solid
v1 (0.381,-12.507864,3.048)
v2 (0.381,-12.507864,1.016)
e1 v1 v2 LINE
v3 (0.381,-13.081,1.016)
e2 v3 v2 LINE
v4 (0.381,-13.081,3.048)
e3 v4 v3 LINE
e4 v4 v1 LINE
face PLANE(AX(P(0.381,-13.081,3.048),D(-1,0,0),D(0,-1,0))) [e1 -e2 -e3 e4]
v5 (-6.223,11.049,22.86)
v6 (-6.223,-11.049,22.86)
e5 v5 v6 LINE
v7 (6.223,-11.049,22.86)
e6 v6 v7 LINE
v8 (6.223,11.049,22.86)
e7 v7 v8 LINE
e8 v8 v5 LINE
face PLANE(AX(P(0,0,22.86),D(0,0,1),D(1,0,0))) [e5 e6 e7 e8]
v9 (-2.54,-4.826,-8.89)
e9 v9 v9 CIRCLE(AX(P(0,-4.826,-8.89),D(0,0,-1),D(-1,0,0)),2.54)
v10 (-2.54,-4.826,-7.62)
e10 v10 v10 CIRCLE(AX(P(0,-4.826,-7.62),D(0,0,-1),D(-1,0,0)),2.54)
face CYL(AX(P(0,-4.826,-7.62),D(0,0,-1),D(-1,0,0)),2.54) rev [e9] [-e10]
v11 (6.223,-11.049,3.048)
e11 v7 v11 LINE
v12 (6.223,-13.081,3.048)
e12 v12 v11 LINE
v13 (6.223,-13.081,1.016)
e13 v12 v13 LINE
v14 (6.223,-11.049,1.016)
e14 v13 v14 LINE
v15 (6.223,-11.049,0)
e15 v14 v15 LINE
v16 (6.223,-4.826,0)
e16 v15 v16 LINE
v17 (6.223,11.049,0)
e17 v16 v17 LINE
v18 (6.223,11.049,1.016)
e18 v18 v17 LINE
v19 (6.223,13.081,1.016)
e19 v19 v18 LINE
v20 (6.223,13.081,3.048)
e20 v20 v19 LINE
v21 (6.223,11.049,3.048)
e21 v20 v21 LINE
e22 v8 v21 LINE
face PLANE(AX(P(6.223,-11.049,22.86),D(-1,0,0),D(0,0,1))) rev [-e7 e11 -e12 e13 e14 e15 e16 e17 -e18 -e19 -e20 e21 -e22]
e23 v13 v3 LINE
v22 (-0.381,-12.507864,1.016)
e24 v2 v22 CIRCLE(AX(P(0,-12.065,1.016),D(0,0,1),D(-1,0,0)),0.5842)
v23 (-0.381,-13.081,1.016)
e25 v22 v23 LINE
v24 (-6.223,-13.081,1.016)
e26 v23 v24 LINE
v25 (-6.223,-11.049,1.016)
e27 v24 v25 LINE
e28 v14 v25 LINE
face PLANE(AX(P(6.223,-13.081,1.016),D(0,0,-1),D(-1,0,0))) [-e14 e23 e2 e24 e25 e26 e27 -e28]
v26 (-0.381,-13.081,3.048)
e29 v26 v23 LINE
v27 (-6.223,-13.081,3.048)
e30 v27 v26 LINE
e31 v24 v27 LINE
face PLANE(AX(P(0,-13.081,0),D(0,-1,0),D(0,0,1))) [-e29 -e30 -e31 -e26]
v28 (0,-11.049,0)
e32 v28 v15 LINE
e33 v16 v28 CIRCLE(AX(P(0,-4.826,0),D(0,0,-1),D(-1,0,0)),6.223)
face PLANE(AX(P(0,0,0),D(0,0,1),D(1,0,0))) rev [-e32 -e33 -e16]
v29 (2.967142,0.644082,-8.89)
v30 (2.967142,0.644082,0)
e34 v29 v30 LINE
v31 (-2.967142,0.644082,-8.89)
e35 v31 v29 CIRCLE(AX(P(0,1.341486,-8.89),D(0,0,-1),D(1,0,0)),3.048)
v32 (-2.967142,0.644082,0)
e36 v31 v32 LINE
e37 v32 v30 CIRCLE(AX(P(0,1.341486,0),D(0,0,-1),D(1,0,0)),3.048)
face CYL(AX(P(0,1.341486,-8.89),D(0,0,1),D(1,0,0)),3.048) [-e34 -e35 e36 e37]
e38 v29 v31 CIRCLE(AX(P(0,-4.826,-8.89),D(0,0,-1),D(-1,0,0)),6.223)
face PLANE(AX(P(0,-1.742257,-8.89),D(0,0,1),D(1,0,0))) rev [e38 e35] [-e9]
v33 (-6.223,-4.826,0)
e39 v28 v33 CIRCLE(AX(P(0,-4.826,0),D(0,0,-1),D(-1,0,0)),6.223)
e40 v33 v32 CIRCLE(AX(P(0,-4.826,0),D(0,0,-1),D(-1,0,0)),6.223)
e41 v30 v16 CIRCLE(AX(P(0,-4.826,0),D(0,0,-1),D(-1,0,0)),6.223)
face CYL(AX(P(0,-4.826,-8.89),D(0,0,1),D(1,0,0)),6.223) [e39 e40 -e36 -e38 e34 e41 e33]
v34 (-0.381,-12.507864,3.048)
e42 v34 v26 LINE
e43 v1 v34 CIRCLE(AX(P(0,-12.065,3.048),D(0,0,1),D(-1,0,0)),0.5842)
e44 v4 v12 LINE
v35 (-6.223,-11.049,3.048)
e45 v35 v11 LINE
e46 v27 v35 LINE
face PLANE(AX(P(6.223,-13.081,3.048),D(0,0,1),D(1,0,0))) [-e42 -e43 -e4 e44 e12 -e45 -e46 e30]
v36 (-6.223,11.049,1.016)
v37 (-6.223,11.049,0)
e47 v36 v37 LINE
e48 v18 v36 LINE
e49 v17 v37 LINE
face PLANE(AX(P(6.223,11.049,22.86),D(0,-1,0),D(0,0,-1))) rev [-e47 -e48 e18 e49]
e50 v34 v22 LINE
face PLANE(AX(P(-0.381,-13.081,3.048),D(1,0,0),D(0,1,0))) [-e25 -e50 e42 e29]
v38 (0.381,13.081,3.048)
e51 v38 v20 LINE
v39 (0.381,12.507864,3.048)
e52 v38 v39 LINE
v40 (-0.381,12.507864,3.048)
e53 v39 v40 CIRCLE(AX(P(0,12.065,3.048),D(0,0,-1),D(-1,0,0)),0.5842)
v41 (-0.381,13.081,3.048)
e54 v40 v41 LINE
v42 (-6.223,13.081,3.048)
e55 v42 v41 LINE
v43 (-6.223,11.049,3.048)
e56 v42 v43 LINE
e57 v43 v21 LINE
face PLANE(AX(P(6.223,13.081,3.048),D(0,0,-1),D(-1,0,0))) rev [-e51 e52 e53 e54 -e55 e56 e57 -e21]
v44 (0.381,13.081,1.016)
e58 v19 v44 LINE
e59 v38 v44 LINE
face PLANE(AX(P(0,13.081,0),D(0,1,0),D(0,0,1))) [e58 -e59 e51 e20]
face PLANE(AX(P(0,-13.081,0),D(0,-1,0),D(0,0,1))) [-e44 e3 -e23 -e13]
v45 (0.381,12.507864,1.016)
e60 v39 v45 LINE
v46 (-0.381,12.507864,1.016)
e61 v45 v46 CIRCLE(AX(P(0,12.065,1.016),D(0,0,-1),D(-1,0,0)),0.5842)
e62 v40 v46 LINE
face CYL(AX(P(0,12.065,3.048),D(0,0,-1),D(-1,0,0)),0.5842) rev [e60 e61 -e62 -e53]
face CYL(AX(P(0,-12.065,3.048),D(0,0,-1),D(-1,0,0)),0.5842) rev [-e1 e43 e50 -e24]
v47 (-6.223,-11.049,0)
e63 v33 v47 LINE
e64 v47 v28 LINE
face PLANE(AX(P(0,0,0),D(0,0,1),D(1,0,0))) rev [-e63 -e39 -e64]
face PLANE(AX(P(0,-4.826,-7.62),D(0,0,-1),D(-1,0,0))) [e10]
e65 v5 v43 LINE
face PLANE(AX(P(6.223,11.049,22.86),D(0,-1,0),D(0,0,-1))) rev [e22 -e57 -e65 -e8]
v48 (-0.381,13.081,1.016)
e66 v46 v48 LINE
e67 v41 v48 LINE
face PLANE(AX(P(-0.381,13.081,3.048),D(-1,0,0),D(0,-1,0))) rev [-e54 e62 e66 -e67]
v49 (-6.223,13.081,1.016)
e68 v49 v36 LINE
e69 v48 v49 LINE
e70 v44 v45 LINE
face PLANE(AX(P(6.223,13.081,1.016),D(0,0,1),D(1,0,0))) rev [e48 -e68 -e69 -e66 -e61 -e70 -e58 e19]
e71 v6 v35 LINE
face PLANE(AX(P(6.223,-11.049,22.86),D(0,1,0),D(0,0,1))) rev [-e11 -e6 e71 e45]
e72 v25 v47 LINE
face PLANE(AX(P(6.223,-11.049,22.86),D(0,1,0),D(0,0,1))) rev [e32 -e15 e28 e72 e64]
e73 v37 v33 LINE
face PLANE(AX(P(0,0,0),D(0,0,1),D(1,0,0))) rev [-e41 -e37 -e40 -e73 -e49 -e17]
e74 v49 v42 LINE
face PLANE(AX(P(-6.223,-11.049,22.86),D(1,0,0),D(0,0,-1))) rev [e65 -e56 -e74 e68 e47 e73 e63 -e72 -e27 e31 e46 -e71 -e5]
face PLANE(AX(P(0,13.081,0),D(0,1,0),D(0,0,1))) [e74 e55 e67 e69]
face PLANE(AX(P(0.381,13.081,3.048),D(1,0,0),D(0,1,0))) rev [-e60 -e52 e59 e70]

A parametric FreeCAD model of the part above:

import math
import FreeCAD as App
import Part
import Sketcher
Q = App.Units.Quantity

doc = App.newDocument("Part")
body = doc.addObject("PartDesign::Body", "Body")

# Sketch on XY plane
sketch1 = body.newObject("Sketcher::SketchObject", "Sketch")
sketch1.AttachmentSupport = (doc.getObject("XY_Plane"), [""])
sketch1.MapMode = "FlatFace"
sketch1.addGeometry(Part.LineSegment(App.Vector(-6.223, 11.049, 0), App.Vector(-6.223, -11.049, 0)), False)
sketch1.addGeometry(Part.LineSegment(App.Vector(-6.223, -11.049, 0), App.Vector(6.223, -11.049, 0)), False)
sketch1.addGeometry(Part.LineSegment(App.Vector(6.223, -11.049, 0), App.Vector(6.223, 11.049, 0)), False)
sketch1.addGeometry(Part.LineSegment(App.Vector(6.223, 11.049, 0), App.Vector(-6.223, 11.049, 0)), False)
sketch1.addConstraint(Sketcher.Constraint("Coincident", 0, 2, 1, 1))
sketch1.addConstraint(Sketcher.Constraint("Coincident", 1, 2, 2, 1))
sketch1.addConstraint(Sketcher.Constraint("Coincident", 2, 2, 3, 1))
sketch1.addConstraint(Sketcher.Constraint("Coincident", 3, 2, 0, 1))
sketch1.addConstraint(Sketcher.Constraint("Vertical", 0))
sketch1.addConstraint(Sketcher.Constraint("Horizontal", 1))
sketch1.addConstraint(Sketcher.Constraint("Vertical", 2))
sketch1.addConstraint(Sketcher.Constraint("Horizontal", 3))
sketch1.addConstraint(Sketcher.Constraint("Symmetric", 0, 2, 2, 2, -1, 1))
sketch1.addConstraint(Sketcher.Constraint("DistanceX", 1, 1, 1, 2, Q("0.49 in")))
sketch1.addConstraint(Sketcher.Constraint("DistanceY", 0, 2, 0, 1, Q("0.87 in")))
pad1 = body.newObject("PartDesign::Pad", "Pad")
pad1.Profile = sketch1
pad1.Length = Q("0.9 in")

# Sketch on XZ plane
sketch2 = body.newObject("Sketcher::SketchObject", "Sketch001")
sketch2.AttachmentSupport = (doc.getObject("XZ_Plane"), [""])
sketch2.MapMode = "FlatFace"
sketch2.AttachmentOffset = App.Placement(App.Vector(0, 0, -0.435 * 25.4), App.Rotation())
sketch2.addGeometry(Part.LineSegment(App.Vector(-6.223, 1.016, 0), App.Vector(-6.223, 3.048, 0)), False)
sketch2.addGeometry(Part.LineSegment(App.Vector(-6.223, 3.048, 0), App.Vector(6.223, 3.048, 0)), False)
sketch2.addGeometry(Part.LineSegment(App.Vector(6.223, 3.048, 0), App.Vector(6.223, 1.016, 0)), False)
sketch2.addGeometry(Part.LineSegment(App.Vector(6.223, 1.016, 0), App.Vector(-6.223, 1.016, 0)), False)
sketch2.addConstraint(Sketcher.Constraint("Coincident", 0, 2, 1, 1))
sketch2.addConstraint(Sketcher.Constraint("Coincident", 1, 2, 2, 1))
sketch2.addConstraint(Sketcher.Constraint("Coincident", 2, 2, 3, 1))
sketch2.addConstraint(Sketcher.Constraint("Coincident", 3, 2, 0, 1))
sketch2.addConstraint(Sketcher.Constraint("Vertical", 0))
sketch2.addConstraint(Sketcher.Constraint("Horizontal", 1))
sketch2.addConstraint(Sketcher.Constraint("Vertical", 2))
sketch2.addConstraint(Sketcher.Constraint("Horizontal", 3))
sketch2.addConstraint(Sketcher.Constraint("DistanceX", 1, 1, 1, 2, Q("0.49 in")))
sketch2.addConstraint(Sketcher.Constraint("DistanceY", 0, 1, 0, 2, Q("0.08 in")))
sketch2.addConstraint(Sketcher.Constraint("DistanceY", -1, 1, 0, 2, Q("0.12 in")))
sketch2.addConstraint(Sketcher.Constraint("DistanceX", 0, 2, -1, 1, Q("0.245 in")))
pad2 = body.newObject("PartDesign::Pad", "Pad001")
pad2.Profile = sketch2
pad2.Length = Q("0.08 in")
pad2.Reversed = True

# Sketch on XY plane
sketch3 = body.newObject("Sketcher::SketchObject", "Sketch002")
sketch3.AttachmentSupport = (doc.getObject("XY_Plane"), [""])
sketch3.MapMode = "FlatFace"
sketch3.AttachmentOffset = App.Placement(App.Vector(0, 0, 0.04 * 25.4), App.Rotation())
sketch3.addGeometry(Part.LineSegment(App.Vector(0.381, 13.081, 0), App.Vector(0.381, 12.507864, 0)), False)
sketch3.addGeometry(Part.ArcOfCircle(Part.Circle(App.Vector(0, 12.065, 0), App.Vector(0, 0, 1), 0.5842), math.radians(130.705707), math.radians(409.294293)), False)
sketch3.addGeometry(Part.LineSegment(App.Vector(-0.381, 12.507864, 0), App.Vector(-0.381, 13.081, 0)), False)
sketch3.addGeometry(Part.LineSegment(App.Vector(-0.381, 13.081, 0), App.Vector(0.381, 13.081, 0)), False)
sketch3.addConstraint(Sketcher.Constraint("Coincident", 0, 2, 1, 2))
sketch3.addConstraint(Sketcher.Constraint("Coincident", 1, 1, 2, 1))
sketch3.addConstraint(Sketcher.Constraint("Coincident", 2, 2, 3, 1))
sketch3.addConstraint(Sketcher.Constraint("Coincident", 3, 2, 0, 1))
sketch3.addConstraint(Sketcher.Constraint("Vertical", 0))
sketch3.addConstraint(Sketcher.Constraint("Vertical", 2))
sketch3.addConstraint(Sketcher.Constraint("Horizontal", 3))
sketch3.addConstraint(Sketcher.Constraint("Symmetric", 0, 2, 1, 1, -2))
sketch3.addConstraint(Sketcher.Constraint("Radius", 1, Q("0.023 in")))
sketch3.addConstraint(Sketcher.Constraint("DistanceX", 3, 1, 3, 2, Q("0.03 in")))
sketch3.addConstraint(Sketcher.Constraint("DistanceY", 1, 3, 2, 2, Q("0.04 in")))
sketch3.addConstraint(Sketcher.Constraint("DistanceY", -1, 1, 1, 3, Q("0.475 in")))
pocket1 = body.newObject("PartDesign::Pocket", "Pocket")
pocket1.Profile = sketch3
pocket1.Length = Q("0.08 in")
pocket1.Reversed = True
doc.recompute()

mirrored = body.newObject("PartDesign::Mirrored", "Mirrored")
mirrored.Originals = [pad2]
mirrored.MirrorPlane = (doc.getObject("XZ_Plane"), [""])
body.Tip = mirrored
doc.recompute()

mirrored2 = body.newObject("PartDesign::Mirrored", "Mirrored001")
mirrored2.Originals = [pocket1]
mirrored2.MirrorPlane = (doc.getObject("XZ_Plane"), [""])
body.Tip = mirrored2

# Sketch on XY plane
sketch4 = body.newObject("Sketcher::SketchObject", "Sketch003")
sketch4.AttachmentSupport = (doc.getObject("XY_Plane"), [""])
sketch4.MapMode = "FlatFace"
sketch4.addGeometry(Part.ArcOfCircle(Part.Circle(App.Vector(0, -4.826, 0), App.Vector(0, 0, 1), 6.223), math.radians(118.476776), math.radians(421.523224)), False)
sketch4.addGeometry(Part.ArcOfCircle(Part.Circle(App.Vector(0, 1.341486, 0), App.Vector(0, 0, 1), 3.048), math.radians(-13.226852), math.radians(193.226852)), False)
sketch4.addConstraint(Sketcher.Constraint("Coincident", 0, 1, 1, 2))
sketch4.addConstraint(Sketcher.Constraint("Coincident", 1, 1, 0, 2))
sketch4.addConstraint(Sketcher.Constraint("Symmetric", 0, 1, 1, 1, -2))
sketch4.addConstraint(Sketcher.Constraint("Radius", 1, Q("0.12 in")))
sketch4.addConstraint(Sketcher.Constraint("Radius", 0, Q("0.245 in")))
sketch4.addConstraint(Sketcher.Constraint("DistanceY", 0, 3, -1, 1, Q("0.19 in")))
sketch4.addConstraint(Sketcher.Constraint("DistanceX", 0, 1, -1, 1, Q("2.967142 mm")))
pad3 = body.newObject("PartDesign::Pad", "Pad002")
pad3.Profile = sketch4
pad3.Length = Q("0.35 in")
pad3.Reversed = True

# Sketch on XY plane
sketch5 = body.newObject("Sketcher::SketchObject", "Sketch004")
sketch5.AttachmentSupport = (doc.getObject("XY_Plane"), [""])
sketch5.MapMode = "FlatFace"
sketch5.AttachmentOffset = App.Placement(App.Vector(0, 0, -0.35 * 25.4), App.Rotation())
sketch5.addGeometry(Part.Circle(App.Vector(0, -4.826, 0), App.Vector(0, 0, 1), 2.54), False)
sketch5.addConstraint(Sketcher.Constraint("PointOnObject", 0, 3, -2))
sketch5.addConstraint(Sketcher.Constraint("Diameter", 0, Q("0.2 in")))
sketch5.addConstraint(Sketcher.Constraint("DistanceY", 0, 3, -1, 1, Q("0.19 in")))
pocket2 = body.newObject("PartDesign::Pocket", "Pocket001")
pocket2.Profile = sketch5
pocket2.Length = Q("0.05 in")
pocket2.Reversed = True

doc.recompute()
